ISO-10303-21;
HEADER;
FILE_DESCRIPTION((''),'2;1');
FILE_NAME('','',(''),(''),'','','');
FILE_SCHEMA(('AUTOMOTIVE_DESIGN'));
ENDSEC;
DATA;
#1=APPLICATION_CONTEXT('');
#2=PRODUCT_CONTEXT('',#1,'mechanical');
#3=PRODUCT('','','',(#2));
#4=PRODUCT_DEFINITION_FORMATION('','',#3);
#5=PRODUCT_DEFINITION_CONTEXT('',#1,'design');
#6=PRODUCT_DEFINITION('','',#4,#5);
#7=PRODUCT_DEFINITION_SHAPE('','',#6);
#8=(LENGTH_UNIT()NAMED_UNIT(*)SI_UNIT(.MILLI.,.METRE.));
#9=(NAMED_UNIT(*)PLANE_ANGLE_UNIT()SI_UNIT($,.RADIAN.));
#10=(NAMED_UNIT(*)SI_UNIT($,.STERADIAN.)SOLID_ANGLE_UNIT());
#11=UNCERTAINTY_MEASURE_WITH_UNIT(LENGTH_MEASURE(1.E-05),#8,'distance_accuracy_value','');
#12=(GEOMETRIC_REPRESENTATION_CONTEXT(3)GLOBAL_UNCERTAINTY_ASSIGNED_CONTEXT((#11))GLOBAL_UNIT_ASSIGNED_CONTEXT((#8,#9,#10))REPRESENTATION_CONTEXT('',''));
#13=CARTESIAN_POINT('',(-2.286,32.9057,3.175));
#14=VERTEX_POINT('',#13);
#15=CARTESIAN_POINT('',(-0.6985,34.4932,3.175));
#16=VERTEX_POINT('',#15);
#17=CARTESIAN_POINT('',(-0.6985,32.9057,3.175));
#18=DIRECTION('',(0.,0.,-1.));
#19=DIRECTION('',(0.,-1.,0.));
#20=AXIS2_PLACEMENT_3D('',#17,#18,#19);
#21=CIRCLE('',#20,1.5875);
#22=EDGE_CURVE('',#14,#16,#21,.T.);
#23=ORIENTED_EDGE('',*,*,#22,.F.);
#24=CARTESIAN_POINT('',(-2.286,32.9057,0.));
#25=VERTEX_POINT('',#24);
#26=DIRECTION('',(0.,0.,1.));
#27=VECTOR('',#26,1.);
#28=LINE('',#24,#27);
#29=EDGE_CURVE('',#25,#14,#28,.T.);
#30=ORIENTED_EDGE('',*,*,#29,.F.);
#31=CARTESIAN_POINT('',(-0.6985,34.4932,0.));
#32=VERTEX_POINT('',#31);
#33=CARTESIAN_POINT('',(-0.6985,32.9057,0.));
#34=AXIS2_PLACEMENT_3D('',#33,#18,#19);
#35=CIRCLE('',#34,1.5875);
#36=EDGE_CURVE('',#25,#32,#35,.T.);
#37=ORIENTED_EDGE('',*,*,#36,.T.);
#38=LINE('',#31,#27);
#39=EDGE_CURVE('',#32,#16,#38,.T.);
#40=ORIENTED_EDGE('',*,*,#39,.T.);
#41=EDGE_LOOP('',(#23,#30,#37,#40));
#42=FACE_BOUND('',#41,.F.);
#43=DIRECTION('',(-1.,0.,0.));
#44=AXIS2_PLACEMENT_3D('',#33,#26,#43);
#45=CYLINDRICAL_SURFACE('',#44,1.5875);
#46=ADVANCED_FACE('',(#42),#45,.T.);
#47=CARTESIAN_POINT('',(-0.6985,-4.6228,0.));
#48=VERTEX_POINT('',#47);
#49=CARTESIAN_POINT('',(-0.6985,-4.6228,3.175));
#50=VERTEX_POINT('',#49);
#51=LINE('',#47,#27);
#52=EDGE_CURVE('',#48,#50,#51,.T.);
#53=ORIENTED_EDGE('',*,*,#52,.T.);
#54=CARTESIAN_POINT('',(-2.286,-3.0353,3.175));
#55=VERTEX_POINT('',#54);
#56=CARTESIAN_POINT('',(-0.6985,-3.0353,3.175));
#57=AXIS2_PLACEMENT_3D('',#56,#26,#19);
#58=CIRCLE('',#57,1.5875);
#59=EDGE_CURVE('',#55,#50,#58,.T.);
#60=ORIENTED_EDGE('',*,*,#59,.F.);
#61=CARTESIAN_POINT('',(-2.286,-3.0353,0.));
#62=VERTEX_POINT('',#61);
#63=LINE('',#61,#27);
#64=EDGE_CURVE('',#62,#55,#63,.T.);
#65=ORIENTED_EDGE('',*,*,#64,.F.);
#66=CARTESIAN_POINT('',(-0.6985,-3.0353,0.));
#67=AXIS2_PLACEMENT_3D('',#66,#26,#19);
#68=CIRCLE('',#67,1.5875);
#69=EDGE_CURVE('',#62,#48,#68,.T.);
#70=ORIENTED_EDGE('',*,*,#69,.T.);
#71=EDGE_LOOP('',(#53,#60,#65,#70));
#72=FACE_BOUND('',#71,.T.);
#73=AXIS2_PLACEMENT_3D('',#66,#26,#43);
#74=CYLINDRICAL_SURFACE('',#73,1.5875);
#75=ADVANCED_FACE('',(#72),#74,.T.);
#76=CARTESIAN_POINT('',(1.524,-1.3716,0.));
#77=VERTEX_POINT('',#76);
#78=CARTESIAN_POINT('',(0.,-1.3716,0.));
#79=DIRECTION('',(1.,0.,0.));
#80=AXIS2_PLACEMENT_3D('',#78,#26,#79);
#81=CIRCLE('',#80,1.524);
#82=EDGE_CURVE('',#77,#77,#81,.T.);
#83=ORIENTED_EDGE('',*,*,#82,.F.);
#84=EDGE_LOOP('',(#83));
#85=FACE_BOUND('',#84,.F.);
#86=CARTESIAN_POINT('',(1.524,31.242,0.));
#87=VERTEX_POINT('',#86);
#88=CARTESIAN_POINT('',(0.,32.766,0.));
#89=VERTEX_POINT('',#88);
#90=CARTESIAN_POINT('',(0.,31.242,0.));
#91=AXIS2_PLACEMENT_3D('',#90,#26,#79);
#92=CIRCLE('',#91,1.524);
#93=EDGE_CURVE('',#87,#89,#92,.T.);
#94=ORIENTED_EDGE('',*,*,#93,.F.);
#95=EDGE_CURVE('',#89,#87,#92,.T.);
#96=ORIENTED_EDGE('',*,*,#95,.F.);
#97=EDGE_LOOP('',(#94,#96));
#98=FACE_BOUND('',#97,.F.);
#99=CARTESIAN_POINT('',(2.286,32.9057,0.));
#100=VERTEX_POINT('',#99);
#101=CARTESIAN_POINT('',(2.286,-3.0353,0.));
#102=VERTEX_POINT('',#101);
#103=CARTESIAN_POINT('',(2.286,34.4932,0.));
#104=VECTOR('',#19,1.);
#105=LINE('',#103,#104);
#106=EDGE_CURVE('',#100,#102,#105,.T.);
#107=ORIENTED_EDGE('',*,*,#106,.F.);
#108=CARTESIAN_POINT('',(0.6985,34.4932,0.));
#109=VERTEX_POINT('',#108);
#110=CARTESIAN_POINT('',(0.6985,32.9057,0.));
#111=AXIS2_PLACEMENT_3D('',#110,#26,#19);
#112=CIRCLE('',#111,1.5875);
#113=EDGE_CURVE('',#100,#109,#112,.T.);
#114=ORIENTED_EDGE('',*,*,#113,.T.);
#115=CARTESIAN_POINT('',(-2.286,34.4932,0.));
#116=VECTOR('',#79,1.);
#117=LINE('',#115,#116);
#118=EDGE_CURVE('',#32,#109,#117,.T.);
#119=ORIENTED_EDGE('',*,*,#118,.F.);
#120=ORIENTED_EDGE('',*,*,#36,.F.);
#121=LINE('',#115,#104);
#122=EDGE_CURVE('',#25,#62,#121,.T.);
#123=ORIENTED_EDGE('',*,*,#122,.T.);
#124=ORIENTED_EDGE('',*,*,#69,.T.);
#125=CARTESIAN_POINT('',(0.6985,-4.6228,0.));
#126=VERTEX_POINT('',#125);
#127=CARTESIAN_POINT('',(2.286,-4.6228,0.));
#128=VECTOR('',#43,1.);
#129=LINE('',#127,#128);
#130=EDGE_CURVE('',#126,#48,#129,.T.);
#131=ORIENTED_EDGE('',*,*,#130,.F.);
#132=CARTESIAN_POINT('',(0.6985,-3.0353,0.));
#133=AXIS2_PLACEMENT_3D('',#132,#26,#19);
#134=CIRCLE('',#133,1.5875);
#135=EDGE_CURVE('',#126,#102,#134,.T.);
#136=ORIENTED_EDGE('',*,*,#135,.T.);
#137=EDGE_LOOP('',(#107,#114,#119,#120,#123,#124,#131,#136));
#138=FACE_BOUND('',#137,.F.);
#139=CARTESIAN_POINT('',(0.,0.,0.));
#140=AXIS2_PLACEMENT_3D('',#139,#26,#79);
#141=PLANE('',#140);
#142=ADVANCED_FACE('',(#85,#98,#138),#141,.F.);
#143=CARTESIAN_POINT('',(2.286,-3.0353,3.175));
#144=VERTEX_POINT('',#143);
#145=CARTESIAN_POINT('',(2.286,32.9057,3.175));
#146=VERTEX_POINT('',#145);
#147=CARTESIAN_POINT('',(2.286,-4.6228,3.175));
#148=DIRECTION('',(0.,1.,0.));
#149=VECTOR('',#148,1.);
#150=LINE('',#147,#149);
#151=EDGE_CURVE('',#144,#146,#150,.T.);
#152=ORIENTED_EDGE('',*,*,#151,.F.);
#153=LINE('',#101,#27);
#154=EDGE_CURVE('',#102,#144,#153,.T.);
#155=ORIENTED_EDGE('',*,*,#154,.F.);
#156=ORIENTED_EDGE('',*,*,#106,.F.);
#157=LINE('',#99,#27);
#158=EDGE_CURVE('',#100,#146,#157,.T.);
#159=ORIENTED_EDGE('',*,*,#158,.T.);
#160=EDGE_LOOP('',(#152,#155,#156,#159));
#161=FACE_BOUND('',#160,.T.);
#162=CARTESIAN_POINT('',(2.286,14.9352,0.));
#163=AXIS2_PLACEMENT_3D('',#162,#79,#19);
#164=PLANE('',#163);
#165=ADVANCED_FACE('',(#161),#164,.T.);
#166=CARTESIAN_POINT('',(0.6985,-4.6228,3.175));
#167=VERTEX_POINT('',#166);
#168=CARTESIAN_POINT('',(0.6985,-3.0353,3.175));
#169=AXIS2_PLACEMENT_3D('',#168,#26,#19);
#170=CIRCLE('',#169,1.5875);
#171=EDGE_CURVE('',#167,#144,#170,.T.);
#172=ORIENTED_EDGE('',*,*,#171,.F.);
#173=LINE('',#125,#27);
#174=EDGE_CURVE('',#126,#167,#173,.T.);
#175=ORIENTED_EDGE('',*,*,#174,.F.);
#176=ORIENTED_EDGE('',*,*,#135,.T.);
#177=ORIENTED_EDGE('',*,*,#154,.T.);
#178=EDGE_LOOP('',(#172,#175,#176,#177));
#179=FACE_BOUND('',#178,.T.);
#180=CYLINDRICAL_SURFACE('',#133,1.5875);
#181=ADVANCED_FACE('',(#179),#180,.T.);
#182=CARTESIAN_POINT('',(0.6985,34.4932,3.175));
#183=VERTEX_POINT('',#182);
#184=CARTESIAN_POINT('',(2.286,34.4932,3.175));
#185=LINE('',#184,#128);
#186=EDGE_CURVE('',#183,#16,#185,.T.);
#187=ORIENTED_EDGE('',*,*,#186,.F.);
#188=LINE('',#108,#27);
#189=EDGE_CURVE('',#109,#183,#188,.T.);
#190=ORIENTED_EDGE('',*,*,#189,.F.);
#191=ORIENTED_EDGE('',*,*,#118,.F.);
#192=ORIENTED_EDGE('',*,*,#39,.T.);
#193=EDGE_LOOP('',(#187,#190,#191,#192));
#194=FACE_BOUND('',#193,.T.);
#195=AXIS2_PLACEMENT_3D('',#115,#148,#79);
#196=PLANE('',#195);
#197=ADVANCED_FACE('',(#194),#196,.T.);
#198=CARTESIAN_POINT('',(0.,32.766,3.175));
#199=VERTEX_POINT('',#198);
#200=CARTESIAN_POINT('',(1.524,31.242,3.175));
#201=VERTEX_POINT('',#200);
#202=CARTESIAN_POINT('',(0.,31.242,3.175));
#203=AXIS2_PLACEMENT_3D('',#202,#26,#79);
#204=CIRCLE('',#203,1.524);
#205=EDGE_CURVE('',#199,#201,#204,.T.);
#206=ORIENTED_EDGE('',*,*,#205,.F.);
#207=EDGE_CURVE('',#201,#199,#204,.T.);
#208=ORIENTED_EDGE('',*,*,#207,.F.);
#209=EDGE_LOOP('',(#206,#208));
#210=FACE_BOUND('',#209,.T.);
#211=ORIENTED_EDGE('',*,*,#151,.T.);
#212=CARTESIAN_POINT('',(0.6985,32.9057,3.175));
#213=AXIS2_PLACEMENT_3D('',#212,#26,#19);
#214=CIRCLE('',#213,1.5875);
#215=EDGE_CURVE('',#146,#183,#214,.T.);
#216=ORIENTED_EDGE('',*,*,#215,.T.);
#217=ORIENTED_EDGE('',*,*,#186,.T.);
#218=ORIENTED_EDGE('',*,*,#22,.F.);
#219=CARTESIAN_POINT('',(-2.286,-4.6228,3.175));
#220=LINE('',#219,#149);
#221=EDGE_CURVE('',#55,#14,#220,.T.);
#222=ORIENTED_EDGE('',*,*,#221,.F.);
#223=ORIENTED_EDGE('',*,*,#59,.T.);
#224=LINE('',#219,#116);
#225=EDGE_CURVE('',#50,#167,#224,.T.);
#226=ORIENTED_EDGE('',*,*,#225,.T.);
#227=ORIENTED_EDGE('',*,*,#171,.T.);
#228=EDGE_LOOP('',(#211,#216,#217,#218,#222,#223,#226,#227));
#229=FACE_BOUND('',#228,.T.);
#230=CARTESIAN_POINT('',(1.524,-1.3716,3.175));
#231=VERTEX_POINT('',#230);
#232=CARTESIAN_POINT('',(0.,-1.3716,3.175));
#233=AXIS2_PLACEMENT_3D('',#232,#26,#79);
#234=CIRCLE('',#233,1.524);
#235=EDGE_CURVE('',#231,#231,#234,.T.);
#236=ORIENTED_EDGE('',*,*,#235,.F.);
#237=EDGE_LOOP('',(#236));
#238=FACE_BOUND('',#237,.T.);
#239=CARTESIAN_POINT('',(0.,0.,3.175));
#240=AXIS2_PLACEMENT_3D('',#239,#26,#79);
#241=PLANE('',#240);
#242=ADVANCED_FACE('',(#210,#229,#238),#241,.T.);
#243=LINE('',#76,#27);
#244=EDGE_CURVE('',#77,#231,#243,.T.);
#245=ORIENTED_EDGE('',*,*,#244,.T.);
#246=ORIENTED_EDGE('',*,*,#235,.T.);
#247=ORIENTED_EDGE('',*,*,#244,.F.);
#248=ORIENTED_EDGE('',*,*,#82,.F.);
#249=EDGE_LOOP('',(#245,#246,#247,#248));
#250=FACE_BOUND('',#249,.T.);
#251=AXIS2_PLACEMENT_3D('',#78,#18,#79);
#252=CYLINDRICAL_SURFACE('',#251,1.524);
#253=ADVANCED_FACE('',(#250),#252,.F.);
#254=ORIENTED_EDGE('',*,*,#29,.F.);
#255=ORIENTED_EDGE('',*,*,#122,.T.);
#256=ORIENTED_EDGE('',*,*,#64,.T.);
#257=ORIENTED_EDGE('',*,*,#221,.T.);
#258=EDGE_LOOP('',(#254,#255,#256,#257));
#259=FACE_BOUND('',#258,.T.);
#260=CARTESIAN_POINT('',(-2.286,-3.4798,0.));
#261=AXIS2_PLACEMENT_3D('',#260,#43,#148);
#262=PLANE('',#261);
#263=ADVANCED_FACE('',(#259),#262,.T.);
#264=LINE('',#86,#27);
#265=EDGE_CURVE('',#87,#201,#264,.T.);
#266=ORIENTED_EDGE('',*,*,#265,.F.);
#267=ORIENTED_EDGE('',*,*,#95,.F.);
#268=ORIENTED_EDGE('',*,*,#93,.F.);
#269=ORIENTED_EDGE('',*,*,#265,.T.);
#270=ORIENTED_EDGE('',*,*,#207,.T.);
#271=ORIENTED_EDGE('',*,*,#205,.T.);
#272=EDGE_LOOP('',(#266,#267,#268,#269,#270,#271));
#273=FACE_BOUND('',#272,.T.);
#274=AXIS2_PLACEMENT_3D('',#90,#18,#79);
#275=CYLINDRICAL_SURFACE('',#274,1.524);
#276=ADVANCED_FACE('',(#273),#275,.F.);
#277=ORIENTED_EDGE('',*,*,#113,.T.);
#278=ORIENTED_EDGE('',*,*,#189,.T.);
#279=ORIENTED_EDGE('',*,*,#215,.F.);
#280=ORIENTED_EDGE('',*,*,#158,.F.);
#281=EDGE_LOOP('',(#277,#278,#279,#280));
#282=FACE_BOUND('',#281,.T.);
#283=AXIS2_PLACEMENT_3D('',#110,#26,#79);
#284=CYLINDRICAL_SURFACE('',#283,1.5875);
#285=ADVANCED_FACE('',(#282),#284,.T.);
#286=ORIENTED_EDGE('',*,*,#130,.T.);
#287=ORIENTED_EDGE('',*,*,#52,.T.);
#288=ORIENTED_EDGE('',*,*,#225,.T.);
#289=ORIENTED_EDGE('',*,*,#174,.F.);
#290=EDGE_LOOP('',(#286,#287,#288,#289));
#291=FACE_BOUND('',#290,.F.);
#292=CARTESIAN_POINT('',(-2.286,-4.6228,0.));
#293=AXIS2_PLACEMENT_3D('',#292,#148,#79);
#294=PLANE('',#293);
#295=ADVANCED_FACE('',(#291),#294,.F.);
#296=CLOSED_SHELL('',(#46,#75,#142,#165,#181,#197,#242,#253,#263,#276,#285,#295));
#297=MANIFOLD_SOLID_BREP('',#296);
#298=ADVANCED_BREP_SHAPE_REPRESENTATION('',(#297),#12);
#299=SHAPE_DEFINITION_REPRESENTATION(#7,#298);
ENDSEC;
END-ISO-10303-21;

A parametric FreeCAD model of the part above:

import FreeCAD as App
import Part
import Sketcher

V = App.Vector
Q = App.Units.Quantity


def edges_at(feature, points):
    """Names of the edges that pass closest to the given points."""
    edges = feature.Shape.Edges
    near = lambda p: min(range(len(edges)), key=lambda i: edges[i].distToShape(Part.Vertex(*p))[0])
    return sorted({f"Edge{near(p) + 1}" for p in points})


def add_polygon(sketch, points):
    """Adds a closed chain of lines whose ends are joined by coincident constraints."""
    first, n = sketch.GeometryCount, len(points)
    for a, b in zip(points, points[1:] + points[:1]):
        sketch.addGeometry(Part.LineSegment(App.Vector(*a, 0), App.Vector(*b, 0)), False)
    for i in range(n):
        sketch.addConstraint(Sketcher.Constraint("Coincident", first + i, 2, first + (i + 1) % n, 1))

doc = App.newDocument("Part")
body = doc.addObject("PartDesign::Body", "Body")

sketch1 = body.newObject("Sketcher::SketchObject", "Sketch")
sketch1.AttachmentSupport = (doc.getObject("XY_Plane"), [""])
sketch1.MapMode = "FlatFace"
add_polygon(sketch1, [(-2.3, -4.6), (2.3, -4.6), (2.3, 34.5), (-2.3, 34.5)])
sketch1.addGeometry(Part.Circle(V(0, -1.4, 0), V(0, 0, 1), 1.5), False)
sketch1.addGeometry(Part.Circle(V(0, 31.2, 0), V(0, 0, 1), 1.5), False)
sketch1.addConstraint([
    Sketcher.Constraint("Horizontal", 0),
    Sketcher.Constraint("Vertical", 1),
    Sketcher.Constraint("Horizontal", 2),
    Sketcher.Constraint("Vertical", 3),
    Sketcher.Constraint("Equal", 4, 5),
    Sketcher.Constraint("PointOnObject", 4, 3, -2),
    Sketcher.Constraint("PointOnObject", 5, 3, -2),
    Sketcher.Constraint("Diameter", 4, Q("0.12 in")),
    Sketcher.Constraint("DistanceX", 0, 1, 0, 2, Q("0.18 in")),
    Sketcher.Constraint("DistanceY", 1, 1, 1, 2, Q("1.54 in")),
    Sketcher.Constraint("DistanceY", -1, 1, 5, 3, Q("1.23 in")),
    Sketcher.Constraint("DistanceX", -1, 1, 0, 2, Q("0.09 in")),
    Sketcher.Constraint("DistanceY", 4, 3, -1, 1, Q("0.054 in")),
    Sketcher.Constraint("DistanceY", 0, 2, -1, 1, Q("0.182 in")),
])
pad1 = body.newObject("PartDesign::Pad", "Pad")
pad1.Profile = sketch1
pad1.Length = Q("0.125 in")
doc.recompute()

fillet = body.newObject("PartDesign::Fillet", "Fillet")
fillet.Base = (pad1, edges_at(pad1, [
    (2.286, 34.493, 1.587),
    (-2.286, 34.493, 1.587),
    (-2.286, -4.623, 1.587),
    (2.286, -4.623, 1.587),
]))
fillet.Radius = Q("0.0625 in")

doc.recompute()
